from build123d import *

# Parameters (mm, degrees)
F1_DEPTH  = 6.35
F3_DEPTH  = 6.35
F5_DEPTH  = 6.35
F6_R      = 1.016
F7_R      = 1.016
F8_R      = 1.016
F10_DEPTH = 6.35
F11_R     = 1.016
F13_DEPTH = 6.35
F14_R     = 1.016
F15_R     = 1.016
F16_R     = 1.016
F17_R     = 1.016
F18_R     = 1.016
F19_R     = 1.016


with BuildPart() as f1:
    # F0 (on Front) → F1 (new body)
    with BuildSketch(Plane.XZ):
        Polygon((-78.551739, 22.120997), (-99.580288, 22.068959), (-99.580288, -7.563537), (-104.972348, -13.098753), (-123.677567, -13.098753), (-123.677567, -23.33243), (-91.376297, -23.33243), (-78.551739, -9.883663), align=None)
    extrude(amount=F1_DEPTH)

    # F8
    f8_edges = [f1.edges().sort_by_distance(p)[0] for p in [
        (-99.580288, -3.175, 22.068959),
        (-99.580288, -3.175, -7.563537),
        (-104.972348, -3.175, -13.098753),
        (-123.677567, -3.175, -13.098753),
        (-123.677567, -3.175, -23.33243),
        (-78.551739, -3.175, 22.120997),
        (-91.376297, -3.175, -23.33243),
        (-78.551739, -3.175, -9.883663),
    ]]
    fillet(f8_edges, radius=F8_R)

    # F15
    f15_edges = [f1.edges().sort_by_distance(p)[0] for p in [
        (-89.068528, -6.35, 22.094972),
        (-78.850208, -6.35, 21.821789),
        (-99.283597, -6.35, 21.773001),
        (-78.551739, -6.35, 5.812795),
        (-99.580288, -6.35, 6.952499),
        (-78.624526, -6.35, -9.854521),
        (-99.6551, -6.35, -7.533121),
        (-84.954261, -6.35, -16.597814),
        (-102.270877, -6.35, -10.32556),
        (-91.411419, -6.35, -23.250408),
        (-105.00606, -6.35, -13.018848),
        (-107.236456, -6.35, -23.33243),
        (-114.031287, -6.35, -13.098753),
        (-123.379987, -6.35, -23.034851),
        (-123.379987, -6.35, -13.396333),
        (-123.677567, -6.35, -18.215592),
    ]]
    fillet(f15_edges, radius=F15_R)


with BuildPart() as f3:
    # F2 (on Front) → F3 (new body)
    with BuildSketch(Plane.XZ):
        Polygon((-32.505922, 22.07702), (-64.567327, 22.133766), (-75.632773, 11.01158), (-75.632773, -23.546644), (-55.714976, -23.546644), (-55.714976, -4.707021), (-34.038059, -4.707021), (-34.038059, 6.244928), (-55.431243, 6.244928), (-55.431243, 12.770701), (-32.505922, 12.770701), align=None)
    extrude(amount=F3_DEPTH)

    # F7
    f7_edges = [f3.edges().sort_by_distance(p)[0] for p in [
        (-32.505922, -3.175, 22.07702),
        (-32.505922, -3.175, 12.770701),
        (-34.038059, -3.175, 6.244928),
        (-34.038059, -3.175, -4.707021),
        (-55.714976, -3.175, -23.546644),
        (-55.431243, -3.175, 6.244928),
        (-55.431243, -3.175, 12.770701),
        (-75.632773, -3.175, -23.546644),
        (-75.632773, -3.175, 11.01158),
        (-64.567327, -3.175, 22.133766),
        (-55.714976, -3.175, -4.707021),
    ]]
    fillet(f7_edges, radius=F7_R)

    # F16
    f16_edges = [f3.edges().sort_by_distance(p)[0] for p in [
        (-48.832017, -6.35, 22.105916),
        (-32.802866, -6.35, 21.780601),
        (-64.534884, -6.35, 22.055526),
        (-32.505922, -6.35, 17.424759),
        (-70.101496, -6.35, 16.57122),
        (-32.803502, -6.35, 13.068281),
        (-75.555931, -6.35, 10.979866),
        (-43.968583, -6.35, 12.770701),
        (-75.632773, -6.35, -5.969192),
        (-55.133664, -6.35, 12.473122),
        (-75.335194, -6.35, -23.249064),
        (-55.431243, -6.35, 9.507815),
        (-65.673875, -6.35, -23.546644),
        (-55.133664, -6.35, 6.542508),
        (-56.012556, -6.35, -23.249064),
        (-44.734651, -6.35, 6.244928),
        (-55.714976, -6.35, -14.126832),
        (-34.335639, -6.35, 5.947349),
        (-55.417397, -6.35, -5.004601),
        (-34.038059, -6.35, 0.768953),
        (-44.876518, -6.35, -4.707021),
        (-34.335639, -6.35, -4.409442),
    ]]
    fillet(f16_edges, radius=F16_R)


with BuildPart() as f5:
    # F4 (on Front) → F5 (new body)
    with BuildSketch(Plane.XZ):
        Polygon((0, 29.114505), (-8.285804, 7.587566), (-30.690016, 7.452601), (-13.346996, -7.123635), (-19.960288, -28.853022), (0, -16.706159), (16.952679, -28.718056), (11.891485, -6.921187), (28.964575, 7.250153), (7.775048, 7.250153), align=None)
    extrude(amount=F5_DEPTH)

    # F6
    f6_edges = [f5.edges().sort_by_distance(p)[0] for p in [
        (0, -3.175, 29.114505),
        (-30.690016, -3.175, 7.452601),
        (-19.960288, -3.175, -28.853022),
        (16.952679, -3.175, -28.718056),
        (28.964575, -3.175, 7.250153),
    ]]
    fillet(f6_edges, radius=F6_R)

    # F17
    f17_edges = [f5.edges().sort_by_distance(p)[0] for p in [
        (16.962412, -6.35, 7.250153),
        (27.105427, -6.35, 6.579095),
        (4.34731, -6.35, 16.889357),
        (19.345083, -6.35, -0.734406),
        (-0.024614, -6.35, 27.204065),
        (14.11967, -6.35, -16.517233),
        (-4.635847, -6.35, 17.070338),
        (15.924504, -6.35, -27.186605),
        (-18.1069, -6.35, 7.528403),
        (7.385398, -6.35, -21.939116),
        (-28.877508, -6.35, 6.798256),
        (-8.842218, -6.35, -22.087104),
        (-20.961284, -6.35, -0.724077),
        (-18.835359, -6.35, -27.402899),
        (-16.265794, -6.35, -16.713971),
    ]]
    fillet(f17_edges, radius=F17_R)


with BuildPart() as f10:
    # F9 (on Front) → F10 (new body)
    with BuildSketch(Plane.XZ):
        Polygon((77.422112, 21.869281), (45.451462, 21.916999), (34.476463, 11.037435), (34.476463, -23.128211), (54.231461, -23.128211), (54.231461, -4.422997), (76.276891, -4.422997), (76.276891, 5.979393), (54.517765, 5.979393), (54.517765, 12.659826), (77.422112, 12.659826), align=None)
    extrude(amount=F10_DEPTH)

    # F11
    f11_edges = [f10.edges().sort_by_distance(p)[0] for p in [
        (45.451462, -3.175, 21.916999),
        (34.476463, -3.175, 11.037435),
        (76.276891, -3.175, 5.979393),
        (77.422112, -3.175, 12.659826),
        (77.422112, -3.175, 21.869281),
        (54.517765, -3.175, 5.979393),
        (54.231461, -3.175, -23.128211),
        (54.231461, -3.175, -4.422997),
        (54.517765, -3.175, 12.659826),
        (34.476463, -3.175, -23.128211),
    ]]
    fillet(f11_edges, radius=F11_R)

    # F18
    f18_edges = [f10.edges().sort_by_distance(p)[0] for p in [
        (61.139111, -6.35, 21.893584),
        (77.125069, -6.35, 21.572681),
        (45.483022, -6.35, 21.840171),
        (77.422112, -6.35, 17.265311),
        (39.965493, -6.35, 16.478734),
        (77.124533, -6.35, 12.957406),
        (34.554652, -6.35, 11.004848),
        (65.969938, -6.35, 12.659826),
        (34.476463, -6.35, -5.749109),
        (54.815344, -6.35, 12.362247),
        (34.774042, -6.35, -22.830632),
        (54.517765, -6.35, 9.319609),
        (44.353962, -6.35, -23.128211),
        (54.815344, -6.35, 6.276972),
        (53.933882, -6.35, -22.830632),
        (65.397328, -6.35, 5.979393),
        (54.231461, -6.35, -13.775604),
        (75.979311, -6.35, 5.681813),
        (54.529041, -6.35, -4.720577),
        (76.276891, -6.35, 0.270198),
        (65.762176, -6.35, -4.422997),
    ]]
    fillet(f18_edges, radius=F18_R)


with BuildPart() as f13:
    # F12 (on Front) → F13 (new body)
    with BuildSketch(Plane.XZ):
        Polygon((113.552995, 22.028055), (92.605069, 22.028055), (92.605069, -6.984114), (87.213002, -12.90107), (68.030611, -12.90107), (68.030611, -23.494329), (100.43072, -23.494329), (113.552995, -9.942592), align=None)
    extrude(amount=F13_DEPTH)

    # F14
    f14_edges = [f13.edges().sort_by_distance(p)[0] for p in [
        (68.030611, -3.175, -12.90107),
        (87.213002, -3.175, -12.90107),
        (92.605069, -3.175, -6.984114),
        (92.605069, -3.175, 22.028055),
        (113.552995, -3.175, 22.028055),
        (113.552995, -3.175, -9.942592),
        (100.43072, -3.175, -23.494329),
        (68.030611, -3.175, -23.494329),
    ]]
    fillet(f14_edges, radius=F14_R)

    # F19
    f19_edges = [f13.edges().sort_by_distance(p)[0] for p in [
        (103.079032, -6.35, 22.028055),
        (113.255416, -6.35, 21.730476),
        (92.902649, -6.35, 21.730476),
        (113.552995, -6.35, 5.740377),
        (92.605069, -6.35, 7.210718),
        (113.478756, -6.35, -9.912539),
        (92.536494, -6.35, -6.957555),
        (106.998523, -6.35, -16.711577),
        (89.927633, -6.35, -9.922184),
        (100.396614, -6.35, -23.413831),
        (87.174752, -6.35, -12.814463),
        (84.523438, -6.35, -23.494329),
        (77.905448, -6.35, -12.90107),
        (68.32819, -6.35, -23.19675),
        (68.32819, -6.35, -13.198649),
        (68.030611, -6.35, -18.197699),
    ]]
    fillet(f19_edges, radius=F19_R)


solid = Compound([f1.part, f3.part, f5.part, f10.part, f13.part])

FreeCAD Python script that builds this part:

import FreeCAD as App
import Part
import Sketcher

V = App.Vector
Q = App.Units.Quantity


def edges_at(feature, points):
    """Names of the edges that pass closest to the given points."""
    edges = feature.Shape.Edges
    near = lambda p: min(range(len(edges)), key=lambda i: edges[i].distToShape(Part.Vertex(*p))[0])
    return sorted({f"Edge{near(p) + 1}" for p in points})

doc = App.newDocument("Part")
body = doc.addObject("PartDesign::Body", "Body")

sketch1 = body.newObject("Sketcher::SketchObject", "Sketch")
sketch1.AttachmentSupport = (doc.getObject("XZ_Plane"), [""])
sketch1.MapMode = "FlatFace"
sketch1.addGeometry([
    Part.LineSegment(V(-79, 22, 0), V(-100, 22, 0)),
    Part.LineSegment(V(-100, 22, 0), V(-100, -8, 0)),
    Part.LineSegment(V(-100, -8, 0), V(-105, -13, 0)),
    Part.LineSegment(V(-105, -13, 0), V(-124, -13, 0)),
    Part.LineSegment(V(-124, -13, 0), V(-124, -23, 0)),
    Part.LineSegment(V(-124, -23, 0), V(-91, -23, 0)),
    Part.LineSegment(V(-91, -23, 0), V(-79, -10, 0)),
    Part.LineSegment(V(-79, -10, 0), V(-79, 22, 0)),
], False)
sketch1.addConstraint([
    Sketcher.Constraint("Coincident", 0, 2, 1, 1),
    Sketcher.Constraint("Coincident", 1, 2, 2, 1),
    Sketcher.Constraint("Coincident", 2, 2, 3, 1),
    Sketcher.Constraint("Coincident", 3, 2, 4, 1),
    Sketcher.Constraint("Coincident", 4, 2, 5, 1),
    Sketcher.Constraint("Coincident", 5, 2, 6, 1),
    Sketcher.Constraint("Coincident", 6, 2, 7, 1),
    Sketcher.Constraint("Coincident", 7, 2, 0, 1),
    Sketcher.Constraint("Vertical", 1),
    Sketcher.Constraint("Horizontal", 3),
    Sketcher.Constraint("Vertical", 4),
    Sketcher.Constraint("Horizontal", 5),
    Sketcher.Constraint("Vertical", 7),
    Sketcher.Constraint("DistanceX", 3, 2, 3, 1, 18.705219),
    Sketcher.Constraint("DistanceX", 5, 1, 5, 2, 32.30127),
    Sketcher.Constraint("DistanceY", 7, 1, 7, 2, 32.00466),
    Sketcher.Constraint("Distance", 6, 18.583289),
    Sketcher.Constraint("DistanceY", 1, 2, 1, 1, 29.632496),
    Sketcher.Constraint("DistanceY", 4, 2, 4, 1, 10.233677),
    Sketcher.Constraint("DistanceY", -1, 1, 0, 2, 22.068959),
    Sketcher.Constraint("DistanceY", 4, 2, -1, 1, 23.33243),
    Sketcher.Constraint("DistanceX", 6, 2, -1, 1, 78.551739),
    Sketcher.Constraint("DistanceX", 2, 2, 1, 2, 5.39206),
    Sketcher.Constraint("DistanceX", 1, 2, 6, 2, 21.028549),
])
pad1 = body.newObject("PartDesign::Pad", "Pad")
pad1.Profile = sketch1
pad1.Length = Q("0.25 in")
doc.recompute()

fillet = body.newObject("PartDesign::Fillet", "Fillet")
fillet.Base = (pad1, edges_at(pad1, [
    (-99.58, -3.175, 22.069),
    (-99.58, -3.175, -7.564),
    (-104.972, -3.175, -13.099),
    (-123.678, -3.175, -13.099),
    (-123.678, -3.175, -23.332),
    (-78.552, -3.175, 22.121),
    (-91.376, -3.175, -23.332),
    (-78.552, -3.175, -9.884),
]))
fillet.Radius = Q("0.04 in")
doc.recompute()

fillet2 = body.newObject("PartDesign::Fillet", "Fillet001")
fillet2.Base = (fillet, edges_at(fillet, [
    (-89.069, -6.35, 22.095),
    (-78.85, -6.35, 21.822),
    (-99.284, -6.35, 21.773),
    (-78.552, -6.35, 5.813),
    (-99.58, -6.35, 6.952),
    (-78.625, -6.35, -9.855),
    (-99.655, -6.35, -7.533),
    (-84.954, -6.35, -16.598),
    (-102.271, -6.35, -10.326),
    (-91.411, -6.35, -23.25),
    (-105.006, -6.35, -13.019),
    (-107.236, -6.35, -23.332),
    (-114.031, -6.35, -13.099),
    (-123.38, -6.35, -23.035),
    (-123.38, -6.35, -13.396),
    (-123.678, -6.35, -18.216),
]))
fillet2.Radius = Q("0.04 in")
body2 = doc.addObject("PartDesign::Body", "Body001")

sketch2 = body2.newObject("Sketcher::SketchObject", "Sketch001")
sketch2.AttachmentSupport = (doc.getObject("XZ_Plane001"), [""])
sketch2.MapMode = "FlatFace"
sketch2.addGeometry([
    Part.LineSegment(V(-33, 22, 0), V(-65, 22, 0)),
    Part.LineSegment(V(-65, 22, 0), V(-76, 11, 0)),
    Part.LineSegment(V(-76, 11, 0), V(-76, -24, 0)),
    Part.LineSegment(V(-76, -24, 0), V(-56, -24, 0)),
    Part.LineSegment(V(-56, -24, 0), V(-56, -5, 0)),
    Part.LineSegment(V(-56, -5, 0), V(-34, -5, 0)),
    Part.LineSegment(V(-34, -5, 0), V(-34, 6, 0)),
    Part.LineSegment(V(-34, 6, 0), V(-55, 6, 0)),
    Part.LineSegment(V(-55, 6, 0), V(-55, 13, 0)),
    Part.LineSegment(V(-55, 13, 0), V(-33, 13, 0)),
    Part.LineSegment(V(-33, 13, 0), V(-33, 22, 0)),
], False)
sketch2.addConstraint([
    Sketcher.Constraint("Coincident", 0, 2, 1, 1),
    Sketcher.Constraint("Coincident", 1, 2, 2, 1),
    Sketcher.Constraint("Coincident", 2, 2, 3, 1),
    Sketcher.Constraint("Coincident", 3, 2, 4, 1),
    Sketcher.Constraint("Coincident", 4, 2, 5, 1),
    Sketcher.Constraint("Coincident", 5, 2, 6, 1),
    Sketcher.Constraint("Coincident", 6, 2, 7, 1),
    Sketcher.Constraint("Coincident", 7, 2, 8, 1),
    Sketcher.Constraint("Coincident", 8, 2, 9, 1),
    Sketcher.Constraint("Coincident", 9, 2, 10, 1),
    Sketcher.Constraint("Coincident", 10, 2, 0, 1),
    Sketcher.Constraint("Vertical", 2),
    Sketcher.Constraint("Horizontal", 3),
    Sketcher.Constraint("Vertical", 4),
    Sketcher.Constraint("Horizontal", 5),
    Sketcher.Constraint("Vertical", 6),
    Sketcher.Constraint("Horizontal", 7),
    Sketcher.Constraint("Vertical", 8),
    Sketcher.Constraint("Horizontal", 9),
    Sketcher.Constraint("Vertical", 10),
    Sketcher.Constraint("DistanceX", 9, 1, 9, 2, 22.925321),
    Sketcher.Constraint("DistanceY", 6, 1, 6, 2, 10.951949),
    Sketcher.Constraint("DistanceY", 10, 1, 10, 2, 9.306319),
    Sketcher.Constraint("DistanceY", -1, 1, 8, 2, 12.770701),
    Sketcher.Constraint("DistanceY", 4, 2, 1, 2, 15.718601),
    Sketcher.Constraint("DistanceX", 3, 1, 3, 2, 19.917797),
    Sketcher.Constraint("DistanceX", 5, 1, 5, 2, 21.676917),
    Sketcher.Constraint("DistanceX", 7, 2, 7, 1, 21.393184),
    Sketcher.Constraint("DistanceY", 2, 2, 2, 1, 34.558224),
    Sketcher.Constraint("DistanceY", 8, 1, 8, 2, 6.525773),
    Sketcher.Constraint("DistanceX", 5, 2, -1, 1, 34.038059),
    Sketcher.Constraint("DistanceY", 2, 2, 0, 2, 45.68041),
    Sketcher.Constraint("DistanceX", 0, 2, 3, 2, 8.852351),
])
pad2 = body2.newObject("PartDesign::Pad", "Pad001")
pad2.Profile = sketch2
pad2.Length = Q("0.25 in")
doc.recompute()

fillet3 = body2.newObject("PartDesign::Fillet", "Fillet002")
fillet3.Base = (pad2, edges_at(pad2, [
    (-32.506, -3.175, 22.077),
    (-32.506, -3.175, 12.771),
    (-34.038, -3.175, 6.245),
    (-34.038, -3.175, -4.707),
    (-55.715, -3.175, -23.547),
    (-55.431, -3.175, 6.245),
    (-55.431, -3.175, 12.771),
    (-75.633, -3.175, -23.547),
    (-75.633, -3.175, 11.012),
    (-64.567, -3.175, 22.134),
    (-55.715, -3.175, -4.707),
]))
fillet3.Radius = Q("0.04 in")
doc.recompute()

fillet4 = body2.newObject("PartDesign::Fillet", "Fillet003")
fillet4.Base = (fillet3, edges_at(fillet3, [
    (-48.832, -6.35, 22.106),
    (-32.803, -6.35, 21.781),
    (-64.535, -6.35, 22.056),
    (-32.506, -6.35, 17.425),
    (-70.101, -6.35, 16.571),
    (-32.804, -6.35, 13.068),
    (-75.556, -6.35, 10.98),
    (-43.969, -6.35, 12.771),
    (-75.633, -6.35, -5.969),
    (-55.134, -6.35, 12.473),
    (-75.335, -6.35, -23.249),
    (-55.431, -6.35, 9.508),
    (-65.674, -6.35, -23.547),
    (-55.134, -6.35, 6.543),
    (-56.013, -6.35, -23.249),
    (-44.735, -6.35, 6.245),
    (-55.715, -6.35, -14.127),
    (-34.336, -6.35, 5.947),
    (-55.417, -6.35, -5.005),
    (-34.038, -6.35, 0.769),
    (-44.877, -6.35, -4.707),
    (-34.336, -6.35, -4.409),
]))
fillet4.Radius = Q("0.04 in")
body3 = doc.addObject("PartDesign::Body", "Body002")

sketch3 = body3.newObject("Sketcher::SketchObject", "Sketch002")
sketch3.AttachmentSupport = (doc.getObject("XZ_Plane002"), [""])
sketch3.MapMode = "FlatFace"
sketch3.addGeometry([
    Part.LineSegment(V(0, 29, 0), V(-8, 8, 0)),
    Part.LineSegment(V(-8, 8, 0), V(-31, 7, 0)),
    Part.LineSegment(V(-31, 7, 0), V(-13, -7, 0)),
    Part.LineSegment(V(-13, -7, 0), V(-20, -29, 0)),
    Part.LineSegment(V(-20, -29, 0), V(0, -17, 0)),
    Part.LineSegment(V(0, -17, 0), V(17, -29, 0)),
    Part.LineSegment(V(17, -29, 0), V(12, -7, 0)),
    Part.LineSegment(V(12, -7, 0), V(29, 7, 0)),
    Part.LineSegment(V(29, 7, 0), V(8, 7, 0)),
    Part.LineSegment(V(8, 7, 0), V(0, 29, 0)),
], False)
sketch3.addConstraint([
    Sketcher.Constraint("Coincident", 0, 2, 1, 1),
    Sketcher.Constraint("Coincident", 1, 2, 2, 1),
    Sketcher.Constraint("Coincident", 2, 2, 3, 1),
    Sketcher.Constraint("Coincident", 3, 2, 4, 1),
    Sketcher.Constraint("Coincident", 4, 2, 5, 1),
    Sketcher.Constraint("Coincident", 5, 2, 6, 1),
    Sketcher.Constraint("Coincident", 6, 2, 7, 1),
    Sketcher.Constraint("Coincident", 7, 2, 8, 1),
    Sketcher.Constraint("Coincident", 8, 2, 9, 1),
    Sketcher.Constraint("Coincident", 9, 2, 0, 1),
    Sketcher.Constraint("Horizontal", 8),
    Sketcher.Constraint("PointOnObject", 4, 2, -2),
    Sketcher.Constraint("PointOnObject", 9, 2, -2),
    Sketcher.Constraint("DistanceY", -1, 1, 1, 2, 7.452601),
    Sketcher.Constraint("DistanceY", 2, 2, 0, 2, 14.711201),
    Sketcher.Constraint("Distance", 1, 22.404619),
    Sketcher.Constraint("Distance", 9, 23.20563),
    Sketcher.Constraint("DistanceX", 8, 2, 8, 1, 21.189527),
    Sketcher.Constraint("DistanceY", 3, 2, -1, 1, 28.853022),
    Sketcher.Constraint("DistanceY", 4, 2, -1, 1, 16.706159),
    Sketcher.Constraint("DistanceX", -1, 1, 5, 2, 16.952679),
    Sketcher.Constraint("DistanceX", 1, 2, 2, 2, 17.34302),
    Sketcher.Constraint("DistanceX", 3, 2, 2, 2, 6.613292),
    Sketcher.Constraint("DistanceY", 5, 2, 2, 2, 21.594421),
    Sketcher.Constraint("DistanceY", 5, 2, 6, 2, 21.796869),
    Sketcher.Constraint("DistanceX", 0, 2, 6, 2, 20.177289),
    Sketcher.Constraint("DistanceX", 6, 2, 7, 2, 17.07309),
    Sketcher.Constraint("DistanceY", 6, 2, 7, 2, 14.17134),
    Sketcher.Constraint("DistanceY", 0, 2, 9, 2, 21.526939),
    Sketcher.Constraint("Distance", 2, 22.654955),
])
pad3 = body3.newObject("PartDesign::Pad", "Pad002")
pad3.Profile = sketch3
pad3.Length = Q("0.25 in")
doc.recompute()

fillet5 = body3.newObject("PartDesign::Fillet", "Fillet004")
fillet5.Base = (pad3, edges_at(pad3, [
    (0, -3.175, 29.115),
    (-30.69, -3.175, 7.453),
    (-19.96, -3.175, -28.853),
    (16.953, -3.175, -28.718),
    (28.965, -3.175, 7.25),
]))
fillet5.Radius = Q("0.04 in")
doc.recompute()

fillet6 = body3.newObject("PartDesign::Fillet", "Fillet005")
fillet6.Base = (fillet5, edges_at(fillet5, [
    (16.962, -6.35, 7.25),
    (27.105, -6.35, 6.579),
    (4.347, -6.35, 16.889),
    (19.345, -6.35, -0.734),
    (-0.025, -6.35, 27.204),
    (14.12, -6.35, -16.517),
    (-4.636, -6.35, 17.07),
    (15.925, -6.35, -27.187),
    (-18.107, -6.35, 7.528),
    (7.385, -6.35, -21.939),
    (-28.878, -6.35, 6.798),
    (-8.842, -6.35, -22.087),
    (-20.961, -6.35, -0.724),
    (-18.835, -6.35, -27.403),
    (-16.266, -6.35, -16.714),
]))
fillet6.Radius = Q("0.04 in")
body4 = doc.addObject("PartDesign::Body", "Body003")

sketch4 = body4.newObject("Sketcher::SketchObject", "Sketch003")
sketch4.AttachmentSupport = (doc.getObject("XZ_Plane003"), [""])
sketch4.MapMode = "FlatFace"
sketch4.addGeometry([
    Part.LineSegment(V(77, 22, 0), V(45, 22, 0)),
    Part.LineSegment(V(45, 22, 0), V(34, 11, 0)),
    Part.LineSegment(V(34, 11, 0), V(34, -23, 0)),
    Part.LineSegment(V(34, -23, 0), V(54, -23, 0)),
    Part.LineSegment(V(54, -23, 0), V(54, -4, 0)),
    Part.LineSegment(V(54, -4, 0), V(76, -4, 0)),
    Part.LineSegment(V(76, -4, 0), V(76, 6, 0)),
    Part.LineSegment(V(76, 6, 0), V(55, 6, 0)),
    Part.LineSegment(V(55, 6, 0), V(55, 13, 0)),
    Part.LineSegment(V(55, 13, 0), V(77, 13, 0)),
    Part.LineSegment(V(77, 13, 0), V(77, 22, 0)),
], False)
sketch4.addConstraint([
    Sketcher.Constraint("Coincident", 0, 2, 1, 1),
    Sketcher.Constraint("Coincident", 1, 2, 2, 1),
    Sketcher.Constraint("Coincident", 2, 2, 3, 1),
    Sketcher.Constraint("Coincident", 3, 2, 4, 1),
    Sketcher.Constraint("Coincident", 4, 2, 5, 1),
    Sketcher.Constraint("Coincident", 5, 2, 6, 1),
    Sketcher.Constraint("Coincident", 6, 2, 7, 1),
    Sketcher.Constraint("Coincident", 7, 2, 8, 1),
    Sketcher.Constraint("Coincident", 8, 2, 9, 1),
    Sketcher.Constraint("Coincident", 9, 2, 10, 1),
    Sketcher.Constraint("Coincident", 10, 2, 0, 1),
    Sketcher.Constraint("Vertical", 2),
    Sketcher.Constraint("Horizontal", 3),
    Sketcher.Constraint("Vertical", 4),
    Sketcher.Constraint("Horizontal", 5),
    Sketcher.Constraint("Vertical", 6),
    Sketcher.Constraint("Horizontal", 7),
    Sketcher.Constraint("Vertical", 8),
    Sketcher.Constraint("Horizontal", 9),
    Sketcher.Constraint("Vertical", 10),
    Sketcher.Constraint("DistanceX", 3, 1, 3, 2, 19.754998),
    Sketcher.Constraint("DistanceX", 5, 1, 5, 2, 22.04543),
    Sketcher.Constraint("DistanceY", 6, 1, 6, 2, 10.40239),
    Sketcher.Constraint("DistanceY", -1, 1, 0, 2, 21.916999),
    Sketcher.Constraint("DistanceX", 1, 2, 0, 2, 10.974999),
    Sketcher.Constraint("DistanceX", 1, 2, 7, 2, 20.041302),
    Sketcher.Constraint("DistanceX", 9, 1, 9, 2, 22.904347),
    Sketcher.Constraint("DistanceY", 2, 2, 2, 1, 34.165646),
    Sketcher.Constraint("DistanceY", 4, 1, 4, 2, 18.705214),
    Sketcher.Constraint("DistanceY", 8, 1, 8, 2, 6.680433),
    Sketcher.Constraint("DistanceY", 10, 1, 10, 2, 9.209455),
    Sketcher.Constraint("DistanceY", 2, 2, -1, 1, 23.128211),
    Sketcher.Constraint("DistanceX", -1, 1, 3, 2, 54.231461),
])
pad4 = body4.newObject("PartDesign::Pad", "Pad003")
pad4.Profile = sketch4
pad4.Length = Q("0.25 in")
doc.recompute()

fillet7 = body4.newObject("PartDesign::Fillet", "Fillet006")
fillet7.Base = (pad4, edges_at(pad4, [
    (45.451, -3.175, 21.917),
    (34.476, -3.175, 11.037),
    (76.277, -3.175, 5.979),
    (77.422, -3.175, 12.66),
    (77.422, -3.175, 21.869),
    (54.518, -3.175, 5.979),
    (54.231, -3.175, -23.128),
    (54.231, -3.175, -4.423),
    (54.518, -3.175, 12.66),
    (34.476, -3.175, -23.128),
]))
fillet7.Radius = Q("0.04 in")
doc.recompute()

fillet8 = body4.newObject("PartDesign::Fillet", "Fillet007")
fillet8.Base = (fillet7, edges_at(fillet7, [
    (61.139, -6.35, 21.894),
    (77.125, -6.35, 21.573),
    (45.483, -6.35, 21.84),
    (77.422, -6.35, 17.265),
    (39.965, -6.35, 16.479),
    (77.125, -6.35, 12.957),
    (34.555, -6.35, 11.005),
    (65.97, -6.35, 12.66),
    (34.476, -6.35, -5.749),
    (54.815, -6.35, 12.362),
    (34.774, -6.35, -22.831),
    (54.518, -6.35, 9.32),
    (44.354, -6.35, -23.128),
    (54.815, -6.35, 6.277),
    (53.934, -6.35, -22.831),
    (65.397, -6.35, 5.979),
    (54.231, -6.35, -13.776),
    (75.979, -6.35, 5.682),
    (54.529, -6.35, -4.721),
    (76.277, -6.35, 0.27),
    (65.762, -6.35, -4.423),
]))
fillet8.Radius = Q("0.04 in")
body5 = doc.addObject("PartDesign::Body", "Body004")

sketch5 = body5.newObject("Sketcher::SketchObject", "Sketch004")
sketch5.AttachmentSupport = (doc.getObject("XZ_Plane004"), [""])
sketch5.MapMode = "FlatFace"
sketch5.addGeometry([
    Part.LineSegment(V(114, 22, 0), V(93, 22, 0)),
    Part.LineSegment(V(93, 22, 0), V(93, -7, 0)),
    Part.LineSegment(V(93, -7, 0), V(87, -13, 0)),
    Part.LineSegment(V(87, -13, 0), V(68, -13, 0)),
    Part.LineSegment(V(68, -13, 0), V(68, -23, 0)),
    Part.LineSegment(V(68, -23, 0), V(100, -23, 0)),
    Part.LineSegment(V(100, -23, 0), V(114, -10, 0)),
    Part.LineSegment(V(114, -10, 0), V(114, 22, 0)),
], False)
sketch5.addConstraint([
    Sketcher.Constraint("Coincident", 0, 2, 1, 1),
    Sketcher.Constraint("Coincident", 1, 2, 2, 1),
    Sketcher.Constraint("Coincident", 2, 2, 3, 1),
    Sketcher.Constraint("Coincident", 3, 2, 4, 1),
    Sketcher.Constraint("Coincident", 4, 2, 5, 1),
    Sketcher.Constraint("Coincident", 5, 2, 6, 1),
    Sketcher.Constraint("Coincident", 6, 2, 7, 1),
    Sketcher.Constraint("Coincident", 7, 2, 0, 1),
    Sketcher.Constraint("Horizontal", 0),
    Sketcher.Constraint("Vertical", 1),
    Sketcher.Constraint("Horizontal", 3),
    Sketcher.Constraint("Vertical", 4),
    Sketcher.Constraint("Horizontal", 5),
    Sketcher.Constraint("Vertical", 7),
    Sketcher.Constraint("DistanceX", 3, 2, 3, 1, 19.182391),
    Sketcher.Constraint("DistanceX", 5, 1, 5, 2, 32.400109),
    Sketcher.Constraint("DistanceY", 1, 2, 1, 1, 29.012169),
    Sketcher.Constraint("DistanceY", 4, 2, 4, 1, 10.593259),
    Sketcher.Constraint("Distance", 6, 18.863819),
    Sketcher.Constraint("DistanceX", 0, 2, 0, 1, 20.947926),
    Sketcher.Constraint("DistanceY", 7, 1, 7, 2, 31.970647),
    Sketcher.Constraint("DistanceX", -1, 1, 0, 2, 92.605069),
    Sketcher.Constraint("DistanceY", 2, 2, -1, 1, 12.90107),
    Sketcher.Constraint("DistanceX", -1, 1, 3, 2, 68.030611),
])
pad5 = body5.newObject("PartDesign::Pad", "Pad004")
pad5.Profile = sketch5
pad5.Length = Q("0.25 in")
doc.recompute()

fillet9 = body5.newObject("PartDesign::Fillet", "Fillet008")
fillet9.Base = (pad5, edges_at(pad5, [
    (68.031, -3.175, -12.901),
    (87.213, -3.175, -12.901),
    (92.605, -3.175, -6.984),
    (92.605, -3.175, 22.028),
    (113.553, -3.175, 22.028),
    (113.553, -3.175, -9.943),
    (100.431, -3.175, -23.494),
    (68.031, -3.175, -23.494),
]))
fillet9.Radius = Q("0.04 in")
doc.recompute()

fillet10 = body5.newObject("PartDesign::Fillet", "Fillet009")
fillet10.Base = (fillet9, edges_at(fillet9, [
    (103.079, -6.35, 22.028),
    (113.255, -6.35, 21.73),
    (92.903, -6.35, 21.73),
    (113.553, -6.35, 5.74),
    (92.605, -6.35, 7.211),
    (113.479, -6.35, -9.913),
    (92.536, -6.35, -6.958),
    (106.999, -6.35, -16.712),
    (89.928, -6.35, -9.922),
    (100.397, -6.35, -23.414),
    (87.175, -6.35, -12.814),
    (84.523, -6.35, -23.494),
    (77.905, -6.35, -12.901),
    (68.328, -6.35, -23.197),
    (68.328, -6.35, -13.199),
    (68.031, -6.35, -18.198),
]))
fillet10.Radius = Q("0.04 in")

doc.recompute()
